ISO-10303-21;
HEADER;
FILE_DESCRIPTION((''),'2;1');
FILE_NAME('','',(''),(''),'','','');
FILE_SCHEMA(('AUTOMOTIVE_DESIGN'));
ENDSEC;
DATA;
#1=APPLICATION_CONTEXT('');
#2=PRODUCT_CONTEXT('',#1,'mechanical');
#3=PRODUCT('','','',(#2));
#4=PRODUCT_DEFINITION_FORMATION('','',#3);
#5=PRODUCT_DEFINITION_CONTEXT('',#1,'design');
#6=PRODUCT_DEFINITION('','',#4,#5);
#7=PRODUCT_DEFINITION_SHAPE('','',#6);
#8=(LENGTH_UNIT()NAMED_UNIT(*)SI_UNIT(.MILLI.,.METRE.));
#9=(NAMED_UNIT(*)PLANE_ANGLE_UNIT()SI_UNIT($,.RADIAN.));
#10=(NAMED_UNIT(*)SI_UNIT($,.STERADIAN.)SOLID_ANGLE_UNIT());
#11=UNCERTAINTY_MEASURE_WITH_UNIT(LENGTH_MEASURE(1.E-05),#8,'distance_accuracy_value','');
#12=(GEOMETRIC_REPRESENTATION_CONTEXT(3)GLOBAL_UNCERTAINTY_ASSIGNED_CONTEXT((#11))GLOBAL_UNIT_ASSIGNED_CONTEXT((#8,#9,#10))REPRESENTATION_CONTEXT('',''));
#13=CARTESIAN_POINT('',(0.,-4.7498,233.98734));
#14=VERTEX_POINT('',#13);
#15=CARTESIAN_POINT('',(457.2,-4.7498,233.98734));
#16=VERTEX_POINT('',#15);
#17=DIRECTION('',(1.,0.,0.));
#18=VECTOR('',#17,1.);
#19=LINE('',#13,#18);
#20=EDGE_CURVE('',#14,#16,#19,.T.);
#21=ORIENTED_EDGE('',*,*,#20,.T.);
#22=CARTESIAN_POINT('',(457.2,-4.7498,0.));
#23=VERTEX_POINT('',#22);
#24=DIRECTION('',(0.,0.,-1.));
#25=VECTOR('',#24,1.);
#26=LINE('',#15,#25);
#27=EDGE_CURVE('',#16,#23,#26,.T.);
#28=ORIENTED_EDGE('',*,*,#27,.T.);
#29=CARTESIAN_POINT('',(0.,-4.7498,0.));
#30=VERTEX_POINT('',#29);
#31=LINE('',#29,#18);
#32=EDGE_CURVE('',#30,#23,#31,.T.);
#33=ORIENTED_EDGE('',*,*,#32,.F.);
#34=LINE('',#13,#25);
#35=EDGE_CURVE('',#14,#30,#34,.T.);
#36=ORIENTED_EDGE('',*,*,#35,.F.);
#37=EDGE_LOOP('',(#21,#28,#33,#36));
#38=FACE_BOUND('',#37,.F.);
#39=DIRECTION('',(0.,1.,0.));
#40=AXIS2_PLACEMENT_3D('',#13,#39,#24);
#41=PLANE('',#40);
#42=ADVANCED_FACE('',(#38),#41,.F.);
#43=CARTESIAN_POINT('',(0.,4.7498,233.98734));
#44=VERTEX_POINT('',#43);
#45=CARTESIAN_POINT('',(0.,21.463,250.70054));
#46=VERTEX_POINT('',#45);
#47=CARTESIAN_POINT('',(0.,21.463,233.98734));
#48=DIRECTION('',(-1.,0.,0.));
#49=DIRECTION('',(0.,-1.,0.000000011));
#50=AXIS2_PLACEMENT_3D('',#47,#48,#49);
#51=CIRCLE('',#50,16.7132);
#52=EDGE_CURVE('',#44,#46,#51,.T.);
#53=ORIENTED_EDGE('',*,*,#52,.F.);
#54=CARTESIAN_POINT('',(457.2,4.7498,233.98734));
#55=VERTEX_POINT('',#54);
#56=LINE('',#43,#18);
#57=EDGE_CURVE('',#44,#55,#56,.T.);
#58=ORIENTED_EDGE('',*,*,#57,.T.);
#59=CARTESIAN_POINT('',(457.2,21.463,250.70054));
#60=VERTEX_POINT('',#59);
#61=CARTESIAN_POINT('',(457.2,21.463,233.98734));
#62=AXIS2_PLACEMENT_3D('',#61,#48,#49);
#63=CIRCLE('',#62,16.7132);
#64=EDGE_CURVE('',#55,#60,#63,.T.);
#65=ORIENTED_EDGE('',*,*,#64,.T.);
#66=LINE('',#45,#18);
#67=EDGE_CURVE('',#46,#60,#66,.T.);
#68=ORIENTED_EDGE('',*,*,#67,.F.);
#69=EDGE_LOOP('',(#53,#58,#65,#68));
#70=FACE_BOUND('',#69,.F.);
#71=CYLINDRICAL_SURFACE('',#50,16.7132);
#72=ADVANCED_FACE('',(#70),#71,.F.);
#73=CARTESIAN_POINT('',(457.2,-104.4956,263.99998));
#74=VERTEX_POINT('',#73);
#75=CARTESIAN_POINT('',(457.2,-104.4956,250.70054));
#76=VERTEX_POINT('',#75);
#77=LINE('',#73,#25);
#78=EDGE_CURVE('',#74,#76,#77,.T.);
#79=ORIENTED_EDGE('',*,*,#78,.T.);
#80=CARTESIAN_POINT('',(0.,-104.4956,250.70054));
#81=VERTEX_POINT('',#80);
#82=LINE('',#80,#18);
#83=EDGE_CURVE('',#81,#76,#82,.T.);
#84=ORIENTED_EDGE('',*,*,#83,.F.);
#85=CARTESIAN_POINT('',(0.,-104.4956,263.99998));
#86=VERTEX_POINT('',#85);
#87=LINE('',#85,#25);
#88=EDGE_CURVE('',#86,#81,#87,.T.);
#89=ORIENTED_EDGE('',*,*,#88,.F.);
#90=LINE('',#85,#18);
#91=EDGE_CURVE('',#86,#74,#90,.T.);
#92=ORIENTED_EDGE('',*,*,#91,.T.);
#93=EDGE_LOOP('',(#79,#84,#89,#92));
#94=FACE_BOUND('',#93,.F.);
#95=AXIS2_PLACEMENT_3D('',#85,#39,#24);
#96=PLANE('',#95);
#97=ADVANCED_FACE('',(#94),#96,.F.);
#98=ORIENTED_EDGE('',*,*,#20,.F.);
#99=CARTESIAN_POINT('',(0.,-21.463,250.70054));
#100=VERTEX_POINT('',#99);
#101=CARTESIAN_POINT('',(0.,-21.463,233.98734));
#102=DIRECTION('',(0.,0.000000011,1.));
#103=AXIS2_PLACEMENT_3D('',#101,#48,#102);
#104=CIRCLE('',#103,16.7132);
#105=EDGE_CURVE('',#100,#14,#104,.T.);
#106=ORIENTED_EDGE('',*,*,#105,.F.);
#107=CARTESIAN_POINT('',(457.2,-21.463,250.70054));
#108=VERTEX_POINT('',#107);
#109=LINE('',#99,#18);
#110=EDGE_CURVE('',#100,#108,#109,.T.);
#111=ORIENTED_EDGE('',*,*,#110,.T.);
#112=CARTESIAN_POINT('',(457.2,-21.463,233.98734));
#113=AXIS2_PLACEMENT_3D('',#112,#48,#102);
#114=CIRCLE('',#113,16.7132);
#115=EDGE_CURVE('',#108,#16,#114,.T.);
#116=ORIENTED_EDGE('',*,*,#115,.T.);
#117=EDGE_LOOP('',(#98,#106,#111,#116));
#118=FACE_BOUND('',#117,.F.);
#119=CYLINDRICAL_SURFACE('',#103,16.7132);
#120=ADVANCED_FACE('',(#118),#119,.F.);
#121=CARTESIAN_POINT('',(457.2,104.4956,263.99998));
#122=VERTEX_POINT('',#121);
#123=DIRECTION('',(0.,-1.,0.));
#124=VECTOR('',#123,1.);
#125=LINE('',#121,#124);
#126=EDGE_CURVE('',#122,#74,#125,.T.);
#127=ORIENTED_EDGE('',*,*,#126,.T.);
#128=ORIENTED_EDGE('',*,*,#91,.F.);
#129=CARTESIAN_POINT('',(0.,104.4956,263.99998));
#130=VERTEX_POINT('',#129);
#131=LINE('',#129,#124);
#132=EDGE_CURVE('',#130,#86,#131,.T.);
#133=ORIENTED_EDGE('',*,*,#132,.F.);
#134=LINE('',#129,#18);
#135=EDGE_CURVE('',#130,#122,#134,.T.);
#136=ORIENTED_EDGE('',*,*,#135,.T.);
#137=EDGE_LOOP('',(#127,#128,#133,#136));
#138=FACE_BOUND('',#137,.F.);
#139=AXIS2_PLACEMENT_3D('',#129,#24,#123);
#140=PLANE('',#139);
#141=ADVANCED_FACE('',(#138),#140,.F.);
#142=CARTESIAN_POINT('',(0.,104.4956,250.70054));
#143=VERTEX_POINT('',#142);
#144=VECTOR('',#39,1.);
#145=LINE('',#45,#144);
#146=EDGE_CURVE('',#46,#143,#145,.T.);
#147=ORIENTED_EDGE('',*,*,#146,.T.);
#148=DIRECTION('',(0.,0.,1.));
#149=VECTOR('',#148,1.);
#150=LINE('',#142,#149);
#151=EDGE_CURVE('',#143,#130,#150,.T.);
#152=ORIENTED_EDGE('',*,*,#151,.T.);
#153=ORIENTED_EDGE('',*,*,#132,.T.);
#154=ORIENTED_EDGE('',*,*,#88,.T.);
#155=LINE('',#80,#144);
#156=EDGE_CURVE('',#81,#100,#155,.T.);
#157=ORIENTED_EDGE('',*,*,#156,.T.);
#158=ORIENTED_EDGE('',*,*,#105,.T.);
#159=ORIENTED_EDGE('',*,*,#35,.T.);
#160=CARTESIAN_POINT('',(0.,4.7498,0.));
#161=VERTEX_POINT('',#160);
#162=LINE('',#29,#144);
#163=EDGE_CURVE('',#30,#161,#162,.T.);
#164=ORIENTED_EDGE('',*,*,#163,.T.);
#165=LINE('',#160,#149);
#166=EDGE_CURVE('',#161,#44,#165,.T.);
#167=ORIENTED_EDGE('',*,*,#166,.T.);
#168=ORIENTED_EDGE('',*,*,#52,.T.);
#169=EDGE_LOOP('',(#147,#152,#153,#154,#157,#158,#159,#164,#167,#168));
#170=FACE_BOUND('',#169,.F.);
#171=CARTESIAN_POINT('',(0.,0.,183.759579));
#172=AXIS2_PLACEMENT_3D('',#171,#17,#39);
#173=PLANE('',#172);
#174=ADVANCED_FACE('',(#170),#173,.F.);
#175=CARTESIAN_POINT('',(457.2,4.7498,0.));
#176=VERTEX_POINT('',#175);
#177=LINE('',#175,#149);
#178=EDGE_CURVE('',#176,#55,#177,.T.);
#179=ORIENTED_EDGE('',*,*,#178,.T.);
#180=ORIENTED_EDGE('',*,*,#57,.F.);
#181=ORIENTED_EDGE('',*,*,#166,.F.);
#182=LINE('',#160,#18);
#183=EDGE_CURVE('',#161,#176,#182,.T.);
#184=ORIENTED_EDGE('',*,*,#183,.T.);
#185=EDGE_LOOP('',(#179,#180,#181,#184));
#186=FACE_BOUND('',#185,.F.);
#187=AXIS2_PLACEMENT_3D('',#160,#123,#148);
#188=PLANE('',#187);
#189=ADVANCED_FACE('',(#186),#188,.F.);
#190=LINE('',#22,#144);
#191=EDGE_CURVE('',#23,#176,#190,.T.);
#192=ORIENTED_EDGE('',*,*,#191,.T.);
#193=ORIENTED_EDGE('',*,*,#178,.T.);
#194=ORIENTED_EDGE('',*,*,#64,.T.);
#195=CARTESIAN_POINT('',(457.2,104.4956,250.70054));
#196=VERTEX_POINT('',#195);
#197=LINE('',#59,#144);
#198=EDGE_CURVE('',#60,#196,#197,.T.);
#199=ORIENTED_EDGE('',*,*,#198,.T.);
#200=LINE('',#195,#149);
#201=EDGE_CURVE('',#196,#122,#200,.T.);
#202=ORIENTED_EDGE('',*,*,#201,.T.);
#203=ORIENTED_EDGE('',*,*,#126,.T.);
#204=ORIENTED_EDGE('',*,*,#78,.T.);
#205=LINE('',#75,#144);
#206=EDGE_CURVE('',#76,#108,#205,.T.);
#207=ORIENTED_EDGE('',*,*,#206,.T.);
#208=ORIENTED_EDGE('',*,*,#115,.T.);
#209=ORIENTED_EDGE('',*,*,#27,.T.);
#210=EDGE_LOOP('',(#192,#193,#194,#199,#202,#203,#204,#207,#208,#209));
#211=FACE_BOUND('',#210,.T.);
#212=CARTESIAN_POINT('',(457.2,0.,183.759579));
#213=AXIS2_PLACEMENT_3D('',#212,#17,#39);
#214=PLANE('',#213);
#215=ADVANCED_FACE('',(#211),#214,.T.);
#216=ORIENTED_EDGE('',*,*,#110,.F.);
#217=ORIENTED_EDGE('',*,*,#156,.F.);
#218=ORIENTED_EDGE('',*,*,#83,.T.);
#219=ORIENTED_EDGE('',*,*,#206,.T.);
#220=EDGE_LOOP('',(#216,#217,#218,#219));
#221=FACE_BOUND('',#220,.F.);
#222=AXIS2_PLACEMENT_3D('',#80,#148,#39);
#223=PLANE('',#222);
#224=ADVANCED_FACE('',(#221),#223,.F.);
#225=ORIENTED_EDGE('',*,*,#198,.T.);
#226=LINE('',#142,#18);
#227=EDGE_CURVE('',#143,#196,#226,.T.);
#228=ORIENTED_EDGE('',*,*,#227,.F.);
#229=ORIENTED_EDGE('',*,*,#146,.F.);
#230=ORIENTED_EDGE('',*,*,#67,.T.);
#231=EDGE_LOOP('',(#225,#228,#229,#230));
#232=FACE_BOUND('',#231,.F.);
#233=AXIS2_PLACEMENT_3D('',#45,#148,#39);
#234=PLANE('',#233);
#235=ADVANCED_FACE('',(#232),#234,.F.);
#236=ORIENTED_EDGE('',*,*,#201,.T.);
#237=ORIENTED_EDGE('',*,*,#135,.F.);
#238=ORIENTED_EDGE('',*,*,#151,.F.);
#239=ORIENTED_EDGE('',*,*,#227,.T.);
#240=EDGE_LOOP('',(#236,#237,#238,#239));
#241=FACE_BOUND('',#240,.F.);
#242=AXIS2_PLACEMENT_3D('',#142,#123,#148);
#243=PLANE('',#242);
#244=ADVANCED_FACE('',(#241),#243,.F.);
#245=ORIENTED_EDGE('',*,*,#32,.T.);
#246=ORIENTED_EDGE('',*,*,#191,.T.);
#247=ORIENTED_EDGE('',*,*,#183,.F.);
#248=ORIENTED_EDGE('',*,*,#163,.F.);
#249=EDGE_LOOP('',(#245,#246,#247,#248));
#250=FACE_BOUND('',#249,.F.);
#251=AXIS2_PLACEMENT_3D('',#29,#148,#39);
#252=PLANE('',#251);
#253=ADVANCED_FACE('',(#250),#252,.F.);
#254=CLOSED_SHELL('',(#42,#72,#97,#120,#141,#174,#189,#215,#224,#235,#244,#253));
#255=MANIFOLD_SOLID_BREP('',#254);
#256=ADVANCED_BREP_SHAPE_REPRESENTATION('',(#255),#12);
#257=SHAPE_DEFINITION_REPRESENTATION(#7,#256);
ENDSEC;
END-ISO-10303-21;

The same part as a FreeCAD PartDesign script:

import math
import FreeCAD as App
import Part
import Sketcher
Q = App.Units.Quantity

doc = App.newDocument("Part")
body = doc.addObject("PartDesign::Body", "Body")

# Sketch on YZ plane
sketch1 = body.newObject("Sketcher::SketchObject", "Sketch")
sketch1.AttachmentSupport = (doc.getObject("YZ_Plane"), [""])
sketch1.MapMode = "FlatFace"
sketch1.addGeometry([
    Part.LineSegment(App.Vector(-5, 234, 0), App.Vector(-5, 0, 0)),  # 0
    Part.LineSegment(App.Vector(-5, 0, 0), App.Vector(5, 0, 0)),  # 1
    Part.LineSegment(App.Vector(5, 0, 0), App.Vector(5, 234, 0)),  # 2
    Part.ArcOfCircle(Part.Circle(App.Vector(21, 234, 0), App.Vector(0, 0, 1), 17), math.radians(90), math.radians(180)),  # 3
    Part.LineSegment(App.Vector(21, 251, 0), App.Vector(104, 251, 0)),  # 4
    Part.LineSegment(App.Vector(104, 251, 0), App.Vector(104, 264, 0)),  # 5
    Part.LineSegment(App.Vector(104, 264, 0), App.Vector(-104, 264, 0)),  # 6
    Part.LineSegment(App.Vector(-104, 264, 0), App.Vector(-104, 251, 0)),  # 7
    Part.LineSegment(App.Vector(-104, 251, 0), App.Vector(-21, 251, 0)),  # 8
    Part.ArcOfCircle(Part.Circle(App.Vector(-21, 234, 0), App.Vector(0, 0, 1), 17), math.radians(0), math.radians(90)),  # 9
], False)
sketch1.addConstraint([
    Sketcher.Constraint("Coincident", 0, 2, 1, 1),
    Sketcher.Constraint("Coincident", 1, 2, 2, 1),
    Sketcher.Constraint("Tangent", 2, 2, 3, 2),
    Sketcher.Constraint("Tangent", 3, 1, 4, 1),
    Sketcher.Constraint("Coincident", 4, 2, 5, 1),
    Sketcher.Constraint("Coincident", 5, 2, 6, 1),
    Sketcher.Constraint("Coincident", 6, 2, 7, 1),
    Sketcher.Constraint("Coincident", 7, 2, 8, 1),
    Sketcher.Constraint("Tangent", 8, 2, 9, 2),
    Sketcher.Constraint("Tangent", 9, 1, 0, 1),
    Sketcher.Constraint("Vertical", 0),
    Sketcher.Constraint("Horizontal", 1),
    Sketcher.Constraint("Vertical", 2),
    Sketcher.Constraint("Horizontal", 4),
    Sketcher.Constraint("Vertical", 5),
    Sketcher.Constraint("Horizontal", 6),
    Sketcher.Constraint("Vertical", 7),
    Sketcher.Constraint("Horizontal", 8),
    Sketcher.Constraint("Equal", 3, 9),
    Sketcher.Constraint("Symmetric", 0, 2, 1, 2, -1, 1),
    Sketcher.Constraint("Symmetric", 4, 2, 7, 2, -2),
    Sketcher.Constraint("Radius", 3, Q("0.658 in")),
    Sketcher.Constraint("DistanceX", 1, 1, 1, 2, Q("0.374 in")),
    Sketcher.Constraint("DistanceX", 4, 1, 4, 2, Q("3.269 in")),
    Sketcher.Constraint("DistanceY", 0, 2, 0, 1, Q("9.2121 in")),
    Sketcher.Constraint("DistanceY", 5, 1, 5, 2, Q("0.5236 in")),
])
pad1 = body.newObject("PartDesign::Pad", "Pad")
pad1.Profile = sketch1
pad1.Length = Q("18 in")

doc.recompute()
